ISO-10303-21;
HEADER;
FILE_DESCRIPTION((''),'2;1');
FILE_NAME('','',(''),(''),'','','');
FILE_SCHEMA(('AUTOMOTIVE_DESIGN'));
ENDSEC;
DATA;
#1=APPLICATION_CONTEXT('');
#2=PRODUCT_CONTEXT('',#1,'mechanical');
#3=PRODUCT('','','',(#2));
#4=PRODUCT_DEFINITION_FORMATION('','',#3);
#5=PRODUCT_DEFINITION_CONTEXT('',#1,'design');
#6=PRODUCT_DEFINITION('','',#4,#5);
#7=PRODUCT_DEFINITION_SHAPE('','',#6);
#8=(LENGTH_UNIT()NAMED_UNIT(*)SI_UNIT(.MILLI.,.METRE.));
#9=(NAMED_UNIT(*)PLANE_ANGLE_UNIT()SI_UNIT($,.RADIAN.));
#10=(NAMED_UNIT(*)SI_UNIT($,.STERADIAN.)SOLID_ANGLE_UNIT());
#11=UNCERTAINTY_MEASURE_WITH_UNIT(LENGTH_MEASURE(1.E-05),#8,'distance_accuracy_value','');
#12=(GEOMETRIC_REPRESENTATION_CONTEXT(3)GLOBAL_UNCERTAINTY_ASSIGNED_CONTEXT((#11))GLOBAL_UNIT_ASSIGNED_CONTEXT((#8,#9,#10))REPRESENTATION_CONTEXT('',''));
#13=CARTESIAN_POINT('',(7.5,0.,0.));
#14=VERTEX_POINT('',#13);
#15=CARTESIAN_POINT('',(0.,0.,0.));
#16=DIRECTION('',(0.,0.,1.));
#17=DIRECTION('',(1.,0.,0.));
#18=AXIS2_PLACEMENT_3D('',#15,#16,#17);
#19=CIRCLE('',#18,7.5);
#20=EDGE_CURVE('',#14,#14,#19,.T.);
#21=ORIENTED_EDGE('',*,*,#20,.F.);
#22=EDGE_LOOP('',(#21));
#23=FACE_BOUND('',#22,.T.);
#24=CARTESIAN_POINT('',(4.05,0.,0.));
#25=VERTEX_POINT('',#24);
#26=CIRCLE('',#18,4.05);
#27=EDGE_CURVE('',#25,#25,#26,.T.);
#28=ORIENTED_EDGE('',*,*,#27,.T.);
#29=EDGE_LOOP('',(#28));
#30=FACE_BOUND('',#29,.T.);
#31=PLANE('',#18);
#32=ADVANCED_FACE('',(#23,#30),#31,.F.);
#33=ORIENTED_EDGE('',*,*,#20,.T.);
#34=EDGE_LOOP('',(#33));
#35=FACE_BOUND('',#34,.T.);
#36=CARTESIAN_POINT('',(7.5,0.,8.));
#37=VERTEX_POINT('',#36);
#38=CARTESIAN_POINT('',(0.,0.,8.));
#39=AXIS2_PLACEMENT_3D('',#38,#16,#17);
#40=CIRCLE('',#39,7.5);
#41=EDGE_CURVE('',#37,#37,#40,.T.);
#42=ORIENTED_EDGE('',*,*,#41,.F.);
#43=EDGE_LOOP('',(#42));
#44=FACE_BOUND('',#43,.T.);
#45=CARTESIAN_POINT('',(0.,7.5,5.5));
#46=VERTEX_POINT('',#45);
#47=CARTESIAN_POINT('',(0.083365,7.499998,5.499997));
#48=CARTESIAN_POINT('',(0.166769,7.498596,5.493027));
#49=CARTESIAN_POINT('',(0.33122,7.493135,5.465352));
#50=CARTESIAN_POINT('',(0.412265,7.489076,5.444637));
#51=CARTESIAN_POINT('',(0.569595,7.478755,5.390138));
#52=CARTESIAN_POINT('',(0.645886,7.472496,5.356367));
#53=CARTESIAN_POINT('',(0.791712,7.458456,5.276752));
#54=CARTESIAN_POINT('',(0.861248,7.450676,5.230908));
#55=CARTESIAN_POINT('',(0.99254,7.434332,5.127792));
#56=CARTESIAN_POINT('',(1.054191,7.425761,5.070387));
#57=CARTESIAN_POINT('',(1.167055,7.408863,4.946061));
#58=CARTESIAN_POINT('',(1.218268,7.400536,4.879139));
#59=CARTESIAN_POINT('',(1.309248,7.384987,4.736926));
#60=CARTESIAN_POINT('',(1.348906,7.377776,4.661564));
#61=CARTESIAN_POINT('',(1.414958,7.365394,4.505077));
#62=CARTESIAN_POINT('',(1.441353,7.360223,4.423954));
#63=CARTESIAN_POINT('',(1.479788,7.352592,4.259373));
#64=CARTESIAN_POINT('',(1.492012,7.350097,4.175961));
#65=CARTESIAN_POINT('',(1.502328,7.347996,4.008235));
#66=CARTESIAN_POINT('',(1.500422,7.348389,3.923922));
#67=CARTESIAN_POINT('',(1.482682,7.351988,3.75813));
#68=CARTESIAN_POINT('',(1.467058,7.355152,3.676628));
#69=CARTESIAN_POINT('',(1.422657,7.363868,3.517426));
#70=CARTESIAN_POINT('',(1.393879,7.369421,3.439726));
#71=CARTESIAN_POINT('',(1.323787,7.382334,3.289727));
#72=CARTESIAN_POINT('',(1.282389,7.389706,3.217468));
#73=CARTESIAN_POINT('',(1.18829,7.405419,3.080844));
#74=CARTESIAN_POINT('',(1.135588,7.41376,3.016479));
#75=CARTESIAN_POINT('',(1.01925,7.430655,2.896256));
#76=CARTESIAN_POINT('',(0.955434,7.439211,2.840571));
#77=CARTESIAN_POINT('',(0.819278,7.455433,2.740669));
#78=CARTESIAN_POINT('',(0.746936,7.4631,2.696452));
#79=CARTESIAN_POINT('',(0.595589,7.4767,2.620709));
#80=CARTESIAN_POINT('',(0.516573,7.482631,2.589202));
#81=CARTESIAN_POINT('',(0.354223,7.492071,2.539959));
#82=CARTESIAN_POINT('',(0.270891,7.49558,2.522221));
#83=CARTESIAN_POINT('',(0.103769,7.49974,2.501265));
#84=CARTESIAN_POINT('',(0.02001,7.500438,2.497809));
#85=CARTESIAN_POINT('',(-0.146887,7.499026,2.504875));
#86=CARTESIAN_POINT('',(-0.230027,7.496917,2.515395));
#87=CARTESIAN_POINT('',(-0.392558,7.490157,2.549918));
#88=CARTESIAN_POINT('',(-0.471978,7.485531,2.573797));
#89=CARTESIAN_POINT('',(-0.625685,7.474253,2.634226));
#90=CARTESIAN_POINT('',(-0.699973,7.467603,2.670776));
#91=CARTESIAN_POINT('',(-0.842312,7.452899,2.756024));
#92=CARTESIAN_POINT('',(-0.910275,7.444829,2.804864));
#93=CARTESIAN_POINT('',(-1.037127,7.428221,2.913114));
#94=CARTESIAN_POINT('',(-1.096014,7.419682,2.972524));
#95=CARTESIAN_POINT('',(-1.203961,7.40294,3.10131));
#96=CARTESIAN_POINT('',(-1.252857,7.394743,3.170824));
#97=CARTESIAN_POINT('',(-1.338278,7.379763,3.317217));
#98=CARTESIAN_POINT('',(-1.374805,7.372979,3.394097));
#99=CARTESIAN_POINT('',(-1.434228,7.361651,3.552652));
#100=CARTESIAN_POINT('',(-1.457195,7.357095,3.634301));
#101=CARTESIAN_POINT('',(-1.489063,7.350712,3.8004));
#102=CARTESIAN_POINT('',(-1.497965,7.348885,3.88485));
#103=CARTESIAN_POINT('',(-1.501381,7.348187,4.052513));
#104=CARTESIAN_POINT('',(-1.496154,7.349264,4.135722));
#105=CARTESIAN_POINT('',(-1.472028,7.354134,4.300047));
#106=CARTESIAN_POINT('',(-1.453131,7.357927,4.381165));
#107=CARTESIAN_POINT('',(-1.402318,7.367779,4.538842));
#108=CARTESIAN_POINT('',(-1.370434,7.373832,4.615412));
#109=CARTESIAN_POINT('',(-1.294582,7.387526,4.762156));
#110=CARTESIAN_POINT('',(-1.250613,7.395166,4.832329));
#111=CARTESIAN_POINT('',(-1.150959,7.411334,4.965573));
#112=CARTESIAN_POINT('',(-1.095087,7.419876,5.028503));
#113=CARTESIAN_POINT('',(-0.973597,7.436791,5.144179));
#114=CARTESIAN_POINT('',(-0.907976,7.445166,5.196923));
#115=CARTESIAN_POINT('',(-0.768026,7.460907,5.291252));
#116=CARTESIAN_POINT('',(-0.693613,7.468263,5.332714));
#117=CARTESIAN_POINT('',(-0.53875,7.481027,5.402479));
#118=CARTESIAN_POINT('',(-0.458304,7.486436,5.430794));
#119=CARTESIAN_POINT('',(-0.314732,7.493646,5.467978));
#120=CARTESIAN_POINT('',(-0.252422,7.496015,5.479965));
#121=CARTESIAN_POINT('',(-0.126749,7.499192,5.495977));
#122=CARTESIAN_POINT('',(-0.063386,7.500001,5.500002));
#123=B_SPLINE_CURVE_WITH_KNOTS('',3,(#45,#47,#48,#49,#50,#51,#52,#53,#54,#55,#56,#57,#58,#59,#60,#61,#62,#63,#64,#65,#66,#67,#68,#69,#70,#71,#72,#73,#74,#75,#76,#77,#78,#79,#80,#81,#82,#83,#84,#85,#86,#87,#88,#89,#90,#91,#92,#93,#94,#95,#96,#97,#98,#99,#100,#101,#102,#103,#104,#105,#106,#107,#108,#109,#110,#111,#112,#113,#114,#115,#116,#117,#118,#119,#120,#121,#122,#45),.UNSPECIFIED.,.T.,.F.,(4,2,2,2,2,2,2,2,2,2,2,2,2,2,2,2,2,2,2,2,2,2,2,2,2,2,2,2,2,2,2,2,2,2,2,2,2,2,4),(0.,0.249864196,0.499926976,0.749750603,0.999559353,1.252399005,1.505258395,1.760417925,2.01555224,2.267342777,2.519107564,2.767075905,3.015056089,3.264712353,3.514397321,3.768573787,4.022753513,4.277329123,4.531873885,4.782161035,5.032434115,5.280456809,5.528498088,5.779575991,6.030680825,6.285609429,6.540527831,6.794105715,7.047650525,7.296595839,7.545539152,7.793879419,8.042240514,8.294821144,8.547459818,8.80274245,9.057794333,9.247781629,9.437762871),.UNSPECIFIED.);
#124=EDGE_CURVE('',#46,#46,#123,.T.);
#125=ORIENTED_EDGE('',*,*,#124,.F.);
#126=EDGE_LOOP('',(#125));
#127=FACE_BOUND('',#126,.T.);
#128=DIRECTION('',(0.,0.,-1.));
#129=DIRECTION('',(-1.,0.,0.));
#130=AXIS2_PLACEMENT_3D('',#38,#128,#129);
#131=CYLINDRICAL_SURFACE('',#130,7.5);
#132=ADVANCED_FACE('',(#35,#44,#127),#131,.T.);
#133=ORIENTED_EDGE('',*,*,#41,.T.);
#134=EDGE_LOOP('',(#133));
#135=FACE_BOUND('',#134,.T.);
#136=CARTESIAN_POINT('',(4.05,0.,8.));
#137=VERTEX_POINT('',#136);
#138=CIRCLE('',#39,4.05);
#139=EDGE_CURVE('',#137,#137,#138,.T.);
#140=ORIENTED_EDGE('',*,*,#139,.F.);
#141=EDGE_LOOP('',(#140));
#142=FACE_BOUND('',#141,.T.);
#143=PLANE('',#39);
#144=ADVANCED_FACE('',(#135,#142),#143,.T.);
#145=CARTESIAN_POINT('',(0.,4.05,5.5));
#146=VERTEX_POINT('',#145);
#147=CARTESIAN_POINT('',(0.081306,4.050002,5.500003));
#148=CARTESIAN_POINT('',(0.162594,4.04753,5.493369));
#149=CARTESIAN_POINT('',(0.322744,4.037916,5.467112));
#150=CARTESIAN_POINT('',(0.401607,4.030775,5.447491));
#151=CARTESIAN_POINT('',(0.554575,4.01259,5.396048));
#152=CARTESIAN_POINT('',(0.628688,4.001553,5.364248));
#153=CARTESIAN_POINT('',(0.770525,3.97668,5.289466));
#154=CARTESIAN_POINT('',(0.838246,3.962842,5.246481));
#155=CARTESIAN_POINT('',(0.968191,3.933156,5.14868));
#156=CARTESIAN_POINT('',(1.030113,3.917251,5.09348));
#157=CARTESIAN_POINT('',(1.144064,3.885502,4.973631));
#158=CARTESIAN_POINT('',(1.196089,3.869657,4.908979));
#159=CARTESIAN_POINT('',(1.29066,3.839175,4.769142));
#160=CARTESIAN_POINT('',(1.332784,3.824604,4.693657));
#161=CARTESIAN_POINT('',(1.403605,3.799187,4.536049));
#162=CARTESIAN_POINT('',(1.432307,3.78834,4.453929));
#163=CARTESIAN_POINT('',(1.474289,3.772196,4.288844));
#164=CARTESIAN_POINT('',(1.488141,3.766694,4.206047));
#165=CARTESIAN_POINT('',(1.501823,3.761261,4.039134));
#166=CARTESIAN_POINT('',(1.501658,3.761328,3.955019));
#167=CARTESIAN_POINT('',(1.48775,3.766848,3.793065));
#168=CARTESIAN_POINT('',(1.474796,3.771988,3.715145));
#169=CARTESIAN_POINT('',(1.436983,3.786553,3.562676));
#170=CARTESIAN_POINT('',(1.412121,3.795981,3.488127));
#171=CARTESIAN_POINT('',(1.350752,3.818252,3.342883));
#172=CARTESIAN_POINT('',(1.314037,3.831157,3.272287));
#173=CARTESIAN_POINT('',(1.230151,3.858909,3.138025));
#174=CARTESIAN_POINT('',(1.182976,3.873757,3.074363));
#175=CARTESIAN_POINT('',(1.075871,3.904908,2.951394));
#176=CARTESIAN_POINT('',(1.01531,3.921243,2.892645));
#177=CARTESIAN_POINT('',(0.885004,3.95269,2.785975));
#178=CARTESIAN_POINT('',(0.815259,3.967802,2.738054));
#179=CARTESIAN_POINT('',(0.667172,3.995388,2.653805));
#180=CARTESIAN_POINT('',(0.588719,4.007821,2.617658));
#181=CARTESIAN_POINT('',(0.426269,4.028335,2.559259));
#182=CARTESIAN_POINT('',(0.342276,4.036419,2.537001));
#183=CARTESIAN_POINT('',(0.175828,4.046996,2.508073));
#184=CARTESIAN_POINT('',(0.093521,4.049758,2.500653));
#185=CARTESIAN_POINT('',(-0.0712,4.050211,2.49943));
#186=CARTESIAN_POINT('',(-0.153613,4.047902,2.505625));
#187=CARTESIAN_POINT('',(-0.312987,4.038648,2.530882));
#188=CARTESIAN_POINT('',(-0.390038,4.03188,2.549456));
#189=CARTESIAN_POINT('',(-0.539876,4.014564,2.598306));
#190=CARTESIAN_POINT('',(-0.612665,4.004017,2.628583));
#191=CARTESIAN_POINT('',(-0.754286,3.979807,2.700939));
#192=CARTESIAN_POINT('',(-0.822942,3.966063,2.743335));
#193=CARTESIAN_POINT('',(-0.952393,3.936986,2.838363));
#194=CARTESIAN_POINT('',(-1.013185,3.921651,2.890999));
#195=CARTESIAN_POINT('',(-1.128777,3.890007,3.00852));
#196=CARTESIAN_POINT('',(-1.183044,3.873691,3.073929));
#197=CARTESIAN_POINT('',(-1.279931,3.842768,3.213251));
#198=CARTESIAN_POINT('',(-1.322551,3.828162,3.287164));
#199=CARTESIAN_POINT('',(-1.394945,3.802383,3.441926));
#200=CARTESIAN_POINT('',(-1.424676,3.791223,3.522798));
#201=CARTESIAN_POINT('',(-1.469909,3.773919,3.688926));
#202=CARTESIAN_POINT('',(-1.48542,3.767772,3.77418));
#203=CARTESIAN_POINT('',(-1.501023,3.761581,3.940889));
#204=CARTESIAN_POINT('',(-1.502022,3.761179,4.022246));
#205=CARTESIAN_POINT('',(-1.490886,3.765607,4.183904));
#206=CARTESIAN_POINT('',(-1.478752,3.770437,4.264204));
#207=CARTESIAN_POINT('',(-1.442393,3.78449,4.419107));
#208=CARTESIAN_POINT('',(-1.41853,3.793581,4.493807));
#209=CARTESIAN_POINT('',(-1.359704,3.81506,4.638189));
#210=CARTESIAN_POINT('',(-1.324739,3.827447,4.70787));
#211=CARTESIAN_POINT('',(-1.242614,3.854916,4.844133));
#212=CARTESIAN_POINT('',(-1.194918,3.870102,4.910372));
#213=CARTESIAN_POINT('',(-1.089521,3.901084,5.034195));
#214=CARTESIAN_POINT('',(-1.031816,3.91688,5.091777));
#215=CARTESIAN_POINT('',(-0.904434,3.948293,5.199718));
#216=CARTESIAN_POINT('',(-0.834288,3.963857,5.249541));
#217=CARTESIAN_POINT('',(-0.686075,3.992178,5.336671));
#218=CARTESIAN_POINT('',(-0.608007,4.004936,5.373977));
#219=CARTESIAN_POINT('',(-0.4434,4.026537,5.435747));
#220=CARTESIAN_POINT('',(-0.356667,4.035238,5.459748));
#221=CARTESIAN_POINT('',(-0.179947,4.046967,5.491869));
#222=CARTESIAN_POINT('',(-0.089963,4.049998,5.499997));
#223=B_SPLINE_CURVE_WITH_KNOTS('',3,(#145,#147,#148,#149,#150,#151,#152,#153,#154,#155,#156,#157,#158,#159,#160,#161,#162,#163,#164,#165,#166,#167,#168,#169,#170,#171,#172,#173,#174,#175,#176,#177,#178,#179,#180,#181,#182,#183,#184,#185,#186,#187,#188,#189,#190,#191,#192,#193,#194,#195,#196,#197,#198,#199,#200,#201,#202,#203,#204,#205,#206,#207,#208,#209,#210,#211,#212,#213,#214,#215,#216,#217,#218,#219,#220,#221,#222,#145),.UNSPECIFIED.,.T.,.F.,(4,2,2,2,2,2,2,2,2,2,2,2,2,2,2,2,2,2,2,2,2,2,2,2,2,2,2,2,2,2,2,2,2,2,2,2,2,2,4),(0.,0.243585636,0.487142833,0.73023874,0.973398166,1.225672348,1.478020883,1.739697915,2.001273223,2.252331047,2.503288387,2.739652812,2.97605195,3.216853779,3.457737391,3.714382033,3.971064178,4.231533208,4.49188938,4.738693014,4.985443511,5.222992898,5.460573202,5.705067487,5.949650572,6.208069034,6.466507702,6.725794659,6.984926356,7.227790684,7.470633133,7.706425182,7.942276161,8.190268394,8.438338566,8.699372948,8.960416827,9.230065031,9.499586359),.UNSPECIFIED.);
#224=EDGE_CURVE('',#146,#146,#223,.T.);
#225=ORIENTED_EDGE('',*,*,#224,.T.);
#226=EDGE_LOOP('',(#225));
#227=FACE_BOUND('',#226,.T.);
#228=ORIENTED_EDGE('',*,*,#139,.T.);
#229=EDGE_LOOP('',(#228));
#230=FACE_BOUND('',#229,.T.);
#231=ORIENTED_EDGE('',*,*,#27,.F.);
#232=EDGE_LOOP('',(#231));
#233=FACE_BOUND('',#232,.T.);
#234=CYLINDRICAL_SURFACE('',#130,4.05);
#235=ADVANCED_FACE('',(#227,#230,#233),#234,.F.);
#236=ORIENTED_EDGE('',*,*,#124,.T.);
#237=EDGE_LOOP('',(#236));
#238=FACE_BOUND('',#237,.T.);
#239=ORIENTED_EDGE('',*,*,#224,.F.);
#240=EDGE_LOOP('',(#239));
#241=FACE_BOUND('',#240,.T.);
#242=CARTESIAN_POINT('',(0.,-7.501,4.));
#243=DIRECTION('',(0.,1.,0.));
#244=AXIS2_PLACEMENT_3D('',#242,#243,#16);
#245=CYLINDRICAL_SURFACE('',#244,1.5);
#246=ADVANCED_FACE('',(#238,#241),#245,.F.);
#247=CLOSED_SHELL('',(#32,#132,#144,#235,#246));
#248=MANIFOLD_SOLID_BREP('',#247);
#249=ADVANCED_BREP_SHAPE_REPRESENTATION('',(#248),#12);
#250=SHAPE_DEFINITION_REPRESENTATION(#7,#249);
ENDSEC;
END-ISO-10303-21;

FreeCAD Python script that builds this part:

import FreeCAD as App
import Part
import Sketcher
from FreeCAD import Vector

doc = App.newDocument("Part")
body = doc.addObject("PartDesign::Body", "Body")

# Sketch on XY plane
sketch1 = doc.addObject("Sketcher::SketchObject", "Sketch")
body.addObject(sketch1)
sketch1.AttachmentSupport = (doc.XY_Plane, [""])
sketch1.MapMode = "FlatFace"
sketch1.addGeometry([
    Part.Circle(Vector(0, 0, 0), Vector(0, 0, 1), 7.5),
    Part.Circle(Vector(0, 0, 0), Vector(0, 0, 1), 4.05),
], False)
sketch1.addConstraint([
    Sketcher.Constraint("Coincident", 0, 3, -1, 1),
    Sketcher.Constraint("Coincident", 1, 3, -1, 1),
    Sketcher.Constraint("Diameter", 0, 15.0),
    Sketcher.Constraint("Diameter", 1, 8.1),
])
pad1 = doc.addObject("PartDesign::Pad", "Pad")
body.addObject(pad1)
pad1.Profile = sketch1
pad1.Length = 8

# Sketch on XZ plane
sketch2 = doc.addObject("Sketcher::SketchObject", "Sketch001")
body.addObject(sketch2)
sketch2.AttachmentSupport = (doc.XZ_Plane, [""])
sketch2.MapMode = "FlatFace"
sketch2.AttachmentOffset = App.Placement(Vector(0, 0, -7.5), App.Rotation())
sketch2.addGeometry(Part.Circle(Vector(0, 4, 0), Vector(0, 0, 1), 1.5), False)
sketch2.addConstraint([
    Sketcher.Constraint("PointOnObject", 0, 3, -2),
    Sketcher.Constraint("Diameter", 0, 3.0),
    Sketcher.Constraint("DistanceY", -1, 1, 0, 3, 4.0),
])
pocket1 = doc.addObject("PartDesign::Pocket", "Pocket")
body.addObject(pocket1)
pocket1.Profile = sketch2
pocket1.Type = "UpToFirst"
pocket1.Reversed = True

doc.recompute()
